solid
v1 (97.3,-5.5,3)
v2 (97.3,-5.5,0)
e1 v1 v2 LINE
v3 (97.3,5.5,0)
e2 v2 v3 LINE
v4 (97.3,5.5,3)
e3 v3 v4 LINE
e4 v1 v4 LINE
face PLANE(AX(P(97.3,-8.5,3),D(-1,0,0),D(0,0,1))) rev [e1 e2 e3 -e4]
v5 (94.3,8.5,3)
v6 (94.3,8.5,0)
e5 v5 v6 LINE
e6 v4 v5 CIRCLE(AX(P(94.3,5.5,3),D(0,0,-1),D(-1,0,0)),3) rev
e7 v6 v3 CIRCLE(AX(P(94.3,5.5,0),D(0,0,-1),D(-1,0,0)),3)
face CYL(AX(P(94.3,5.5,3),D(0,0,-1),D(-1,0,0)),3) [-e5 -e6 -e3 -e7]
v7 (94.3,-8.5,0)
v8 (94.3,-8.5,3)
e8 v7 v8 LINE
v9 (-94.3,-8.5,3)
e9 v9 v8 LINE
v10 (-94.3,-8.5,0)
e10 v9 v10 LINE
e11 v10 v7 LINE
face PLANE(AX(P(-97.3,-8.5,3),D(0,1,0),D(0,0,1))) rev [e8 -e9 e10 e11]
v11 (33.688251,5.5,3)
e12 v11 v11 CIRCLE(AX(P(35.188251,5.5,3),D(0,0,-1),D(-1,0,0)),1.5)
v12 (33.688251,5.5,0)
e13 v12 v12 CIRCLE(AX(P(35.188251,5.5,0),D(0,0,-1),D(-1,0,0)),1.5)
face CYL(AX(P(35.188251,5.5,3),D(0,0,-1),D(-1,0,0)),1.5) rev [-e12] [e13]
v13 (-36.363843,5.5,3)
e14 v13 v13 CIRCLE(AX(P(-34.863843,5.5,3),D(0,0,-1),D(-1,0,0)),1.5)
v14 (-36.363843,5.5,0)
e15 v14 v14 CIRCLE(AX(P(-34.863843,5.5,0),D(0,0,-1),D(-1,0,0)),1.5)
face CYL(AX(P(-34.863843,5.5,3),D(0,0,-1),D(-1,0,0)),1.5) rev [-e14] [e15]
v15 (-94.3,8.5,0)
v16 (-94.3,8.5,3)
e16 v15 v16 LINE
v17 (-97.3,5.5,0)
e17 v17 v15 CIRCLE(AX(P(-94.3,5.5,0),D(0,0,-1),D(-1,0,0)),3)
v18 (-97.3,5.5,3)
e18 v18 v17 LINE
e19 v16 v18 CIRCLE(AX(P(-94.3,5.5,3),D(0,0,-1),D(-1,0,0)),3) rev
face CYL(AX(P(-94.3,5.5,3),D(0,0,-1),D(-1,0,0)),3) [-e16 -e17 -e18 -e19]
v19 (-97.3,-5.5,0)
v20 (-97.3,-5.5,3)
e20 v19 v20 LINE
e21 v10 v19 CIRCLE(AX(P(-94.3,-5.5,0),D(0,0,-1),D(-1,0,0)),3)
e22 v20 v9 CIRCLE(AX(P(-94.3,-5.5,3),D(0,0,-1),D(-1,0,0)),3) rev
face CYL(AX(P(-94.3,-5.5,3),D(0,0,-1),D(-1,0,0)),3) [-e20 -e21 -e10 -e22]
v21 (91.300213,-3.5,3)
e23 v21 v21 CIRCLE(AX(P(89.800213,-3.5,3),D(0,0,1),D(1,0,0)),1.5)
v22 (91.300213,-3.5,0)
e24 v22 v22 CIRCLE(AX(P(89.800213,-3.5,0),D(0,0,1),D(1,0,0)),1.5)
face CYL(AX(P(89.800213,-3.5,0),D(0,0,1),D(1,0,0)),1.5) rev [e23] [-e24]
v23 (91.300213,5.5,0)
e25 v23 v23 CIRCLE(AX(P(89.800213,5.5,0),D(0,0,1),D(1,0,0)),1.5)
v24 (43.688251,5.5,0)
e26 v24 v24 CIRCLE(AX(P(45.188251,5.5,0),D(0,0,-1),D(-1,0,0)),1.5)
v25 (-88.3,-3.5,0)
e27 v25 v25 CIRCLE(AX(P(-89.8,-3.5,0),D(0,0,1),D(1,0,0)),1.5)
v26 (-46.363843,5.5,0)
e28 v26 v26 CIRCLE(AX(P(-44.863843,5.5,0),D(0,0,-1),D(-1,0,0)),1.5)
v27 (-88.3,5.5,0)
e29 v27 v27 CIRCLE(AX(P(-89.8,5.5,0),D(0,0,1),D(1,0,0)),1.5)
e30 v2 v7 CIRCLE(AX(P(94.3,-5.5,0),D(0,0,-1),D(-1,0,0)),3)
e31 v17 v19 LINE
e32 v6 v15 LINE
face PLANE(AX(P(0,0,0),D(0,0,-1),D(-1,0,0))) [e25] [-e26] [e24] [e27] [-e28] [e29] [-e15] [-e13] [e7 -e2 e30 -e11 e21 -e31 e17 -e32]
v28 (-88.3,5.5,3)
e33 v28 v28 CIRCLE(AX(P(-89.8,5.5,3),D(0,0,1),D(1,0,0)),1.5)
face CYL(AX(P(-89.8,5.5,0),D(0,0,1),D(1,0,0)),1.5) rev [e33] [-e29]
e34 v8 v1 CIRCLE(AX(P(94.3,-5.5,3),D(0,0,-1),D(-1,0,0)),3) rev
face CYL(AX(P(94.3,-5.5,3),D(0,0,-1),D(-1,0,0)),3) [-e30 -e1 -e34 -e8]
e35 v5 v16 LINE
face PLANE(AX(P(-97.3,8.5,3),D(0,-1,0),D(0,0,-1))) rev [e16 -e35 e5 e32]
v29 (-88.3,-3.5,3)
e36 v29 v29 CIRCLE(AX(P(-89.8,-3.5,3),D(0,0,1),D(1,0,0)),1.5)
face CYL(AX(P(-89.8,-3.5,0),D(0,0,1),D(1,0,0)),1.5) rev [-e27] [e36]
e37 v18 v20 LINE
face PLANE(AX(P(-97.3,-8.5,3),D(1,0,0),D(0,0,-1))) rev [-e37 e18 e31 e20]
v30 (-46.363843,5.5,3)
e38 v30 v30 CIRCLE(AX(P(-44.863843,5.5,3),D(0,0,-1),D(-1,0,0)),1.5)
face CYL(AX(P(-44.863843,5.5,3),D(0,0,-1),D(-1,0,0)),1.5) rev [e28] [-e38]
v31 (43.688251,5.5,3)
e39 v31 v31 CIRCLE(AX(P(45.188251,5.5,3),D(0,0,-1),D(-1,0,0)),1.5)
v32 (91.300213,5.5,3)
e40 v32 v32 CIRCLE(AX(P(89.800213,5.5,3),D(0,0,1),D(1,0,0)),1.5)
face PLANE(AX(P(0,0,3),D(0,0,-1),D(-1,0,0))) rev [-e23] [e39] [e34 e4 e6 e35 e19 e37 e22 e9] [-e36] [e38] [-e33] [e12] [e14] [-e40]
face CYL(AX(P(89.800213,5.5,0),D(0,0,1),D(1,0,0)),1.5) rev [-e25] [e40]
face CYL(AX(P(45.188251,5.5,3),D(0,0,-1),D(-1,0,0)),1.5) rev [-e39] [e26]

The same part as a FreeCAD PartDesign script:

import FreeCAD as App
import Part
import Sketcher
from FreeCAD import Vector


def edges_at(feature, points):
    """Names of the edges that pass closest to the given points."""
    edges = feature.Shape.Edges
    near = lambda p: min(range(len(edges)), key=lambda i: edges[i].distToShape(Part.Vertex(*p))[0])
    return sorted({f"Edge{near(p) + 1}" for p in points})

doc = App.newDocument("Part")
params = doc.addObject("Spreadsheet::Sheet", "Params")
for row, (alias, value) in enumerate([
    ("sketch1_height", "17 mm"),
    ("sketch1_width", "194.6 mm"),
    ("pad1_length", "3 mm"),
    ("fillet_radius", "3 mm"),
    ("sketch2_diameter", "3 mm"),
    ("pocket1_length", "3 mm"),
    ("sketch3_diameter", "3 mm"),
    ("pocket2_length", "3 mm"),
    ("sketch4_diameter", "3 mm"),
    ("pocket3_length", "3 mm"),
], start=1):
    params.set(f"A{row}", alias)
    params.set(f"B{row}", "=" + value)
    params.setAlias(f"B{row}", alias)

body = doc.addObject("PartDesign::Body", "Body")

# Sketch on XY plane
sketch1 = body.newObject("Sketcher::SketchObject", "Sketch")
sketch1.AttachmentSupport = (doc.getObject("XY_Plane"), [""])
sketch1.MapMode = "FlatFace"
sketch1.addGeometry([
    Part.LineSegment(Vector(-97, 8, 0), Vector(-97, -8, 0)),
    Part.LineSegment(Vector(-97, -8, 0), Vector(97, -8, 0)),
    Part.LineSegment(Vector(97, -8, 0), Vector(97, 8, 0)),
    Part.LineSegment(Vector(97, 8, 0), Vector(-97, 8, 0)),
], False)
sketch1.addConstraint([
    Sketcher.Constraint("Coincident", 0, 2, 1, 1),
    Sketcher.Constraint("Coincident", 1, 2, 2, 1),
    Sketcher.Constraint("Coincident", 2, 2, 3, 1),
    Sketcher.Constraint("Coincident", 3, 2, 0, 1),
    Sketcher.Constraint("Vertical", 0),
    Sketcher.Constraint("Horizontal", 1),
    Sketcher.Constraint("Vertical", 2),
    Sketcher.Constraint("Horizontal", 3),
    Sketcher.Constraint("Symmetric", 0, 2, 2, 2, -1, 1),
    Sketcher.Constraint("DistanceY", 0, 2, 0, 1, 17.0),
    Sketcher.Constraint("DistanceX", 1, 1, 1, 2, 194.6),
])
sketch1.setExpression("Constraints[9]", "Params.sketch1_height")
sketch1.setExpression("Constraints[10]", "Params.sketch1_width")
pad1 = body.newObject("PartDesign::Pad", "Pad")
pad1.Profile = sketch1
pad1.setExpression("Length", "Params.pad1_length")
doc.recompute()

fillet = body.newObject("PartDesign::Fillet", "Fillet")
fillet.Base = (pad1, edges_at(pad1, [
    (97.3, -8.5, 1.5),
    (-97.3, -8.5, 1.5),
    (-97.3, 8.5, 1.5),
    (97.3, 8.5, 1.5),
]))
fillet.setExpression("Radius", "Params.fillet_radius")

# Sketch on XY plane
sketch2 = body.newObject("Sketcher::SketchObject", "Sketch001")
sketch2.AttachmentSupport = (doc.getObject("XY_Plane"), [""])
sketch2.MapMode = "FlatFace"
sketch2.AttachmentOffset = App.Placement(Vector(0, 0, 3), App.Rotation())
sketch2.addGeometry([
    Part.Circle(Vector(89.8, 5.5, 0), Vector(0, 0, 1), 1.5),
    Part.Circle(Vector(89.8, -3.5, 0), Vector(0, 0, 1), 1.5),
    Part.Circle(Vector(-89.8, -3.5, 0), Vector(0, 0, 1), 1.5),
    Part.Circle(Vector(-89.8, 5.5, 0), Vector(0, 0, 1), 1.5),
], False)
sketch2.addConstraint([
    Sketcher.Constraint("Equal", 0, 1),
    Sketcher.Constraint("Equal", 1, 2),
    Sketcher.Constraint("Equal", 2, 3),
    Sketcher.Constraint("Horizontal", 1, 3, 2, 3),
    Sketcher.Constraint("Horizontal", 0, 3, 3, 3),
    Sketcher.Constraint("Vertical", 0, 3, 1, 3),
    Sketcher.Constraint("Vertical", 2, 3, 3, 3),
    Sketcher.Constraint("Diameter", 0, 3.0),
    Sketcher.Constraint("DistanceY", 1, 3, 0, 3, 9.0),
    Sketcher.Constraint("DistanceY", -1, 1, 0, 3, 5.5),
    Sketcher.Constraint("DistanceX", 2, 3, -1, 1, 89.8),
    Sketcher.Constraint("DistanceX", -1, 1, 0, 3, 89.800213),
])
sketch2.setExpression("Constraints[7]", "Params.sketch2_diameter")
pocket1 = body.newObject("PartDesign::Pocket", "Pocket")
pocket1.Profile = sketch2
pocket1.setExpression("Length", "Params.pocket1_length")

# Sketch on XY plane
sketch3 = body.newObject("Sketcher::SketchObject", "Sketch002")
sketch3.AttachmentSupport = (doc.getObject("XY_Plane"), [""])
sketch3.MapMode = "FlatFace"
sketch3.addGeometry([
    Part.Circle(Vector(-44.9, 5.5, 0), Vector(0, 0, 1), 1.5),
    Part.Circle(Vector(-34.9, 5.5, 0), Vector(0, 0, 1), 1.5),
], False)
sketch3.addConstraint([
    Sketcher.Constraint("Equal", 0, 1),
    Sketcher.Constraint("Horizontal", 0, 3, 1, 3),
    Sketcher.Constraint("Diameter", 0, 3.0),
    Sketcher.Constraint("DistanceX", 0, 3, 1, 3, 10.0),
    Sketcher.Constraint("DistanceY", -1, 1, 0, 3, 5.5),
    Sketcher.Constraint("DistanceX", 0, 3, -1, 1, 44.863843),
])
sketch3.setExpression("Constraints[2]", "Params.sketch3_diameter")
pocket2 = body.newObject("PartDesign::Pocket", "Pocket001")
pocket2.Profile = sketch3
pocket2.setExpression("Length", "Params.pocket2_length")
pocket2.Reversed = True

# Sketch on XY plane
sketch4 = body.newObject("Sketcher::SketchObject", "Sketch003")
sketch4.AttachmentSupport = (doc.getObject("XY_Plane"), [""])
sketch4.MapMode = "FlatFace"
sketch4.addGeometry([
    Part.Circle(Vector(45.2, 5.5, 0), Vector(0, 0, 1), 1.5),
    Part.Circle(Vector(35.2, 5.5, 0), Vector(0, 0, 1), 1.5),
], False)
sketch4.addConstraint([
    Sketcher.Constraint("Equal", 0, 1),
    Sketcher.Constraint("Horizontal", 0, 3, 1, 3),
    Sketcher.Constraint("Diameter", 0, 3.0),
    Sketcher.Constraint("DistanceX", 1, 3, 0, 3, 10.0),
    Sketcher.Constraint("DistanceY", -1, 1, 0, 3, 5.5),
    Sketcher.Constraint("DistanceX", -1, 1, 0, 3, 45.188251),
])
sketch4.setExpression("Constraints[2]", "Params.sketch4_diameter")
pocket3 = body.newObject("PartDesign::Pocket", "Pocket002")
pocket3.Profile = sketch4
pocket3.setExpression("Length", "Params.pocket3_length")
pocket3.Reversed = True

doc.recompute()
